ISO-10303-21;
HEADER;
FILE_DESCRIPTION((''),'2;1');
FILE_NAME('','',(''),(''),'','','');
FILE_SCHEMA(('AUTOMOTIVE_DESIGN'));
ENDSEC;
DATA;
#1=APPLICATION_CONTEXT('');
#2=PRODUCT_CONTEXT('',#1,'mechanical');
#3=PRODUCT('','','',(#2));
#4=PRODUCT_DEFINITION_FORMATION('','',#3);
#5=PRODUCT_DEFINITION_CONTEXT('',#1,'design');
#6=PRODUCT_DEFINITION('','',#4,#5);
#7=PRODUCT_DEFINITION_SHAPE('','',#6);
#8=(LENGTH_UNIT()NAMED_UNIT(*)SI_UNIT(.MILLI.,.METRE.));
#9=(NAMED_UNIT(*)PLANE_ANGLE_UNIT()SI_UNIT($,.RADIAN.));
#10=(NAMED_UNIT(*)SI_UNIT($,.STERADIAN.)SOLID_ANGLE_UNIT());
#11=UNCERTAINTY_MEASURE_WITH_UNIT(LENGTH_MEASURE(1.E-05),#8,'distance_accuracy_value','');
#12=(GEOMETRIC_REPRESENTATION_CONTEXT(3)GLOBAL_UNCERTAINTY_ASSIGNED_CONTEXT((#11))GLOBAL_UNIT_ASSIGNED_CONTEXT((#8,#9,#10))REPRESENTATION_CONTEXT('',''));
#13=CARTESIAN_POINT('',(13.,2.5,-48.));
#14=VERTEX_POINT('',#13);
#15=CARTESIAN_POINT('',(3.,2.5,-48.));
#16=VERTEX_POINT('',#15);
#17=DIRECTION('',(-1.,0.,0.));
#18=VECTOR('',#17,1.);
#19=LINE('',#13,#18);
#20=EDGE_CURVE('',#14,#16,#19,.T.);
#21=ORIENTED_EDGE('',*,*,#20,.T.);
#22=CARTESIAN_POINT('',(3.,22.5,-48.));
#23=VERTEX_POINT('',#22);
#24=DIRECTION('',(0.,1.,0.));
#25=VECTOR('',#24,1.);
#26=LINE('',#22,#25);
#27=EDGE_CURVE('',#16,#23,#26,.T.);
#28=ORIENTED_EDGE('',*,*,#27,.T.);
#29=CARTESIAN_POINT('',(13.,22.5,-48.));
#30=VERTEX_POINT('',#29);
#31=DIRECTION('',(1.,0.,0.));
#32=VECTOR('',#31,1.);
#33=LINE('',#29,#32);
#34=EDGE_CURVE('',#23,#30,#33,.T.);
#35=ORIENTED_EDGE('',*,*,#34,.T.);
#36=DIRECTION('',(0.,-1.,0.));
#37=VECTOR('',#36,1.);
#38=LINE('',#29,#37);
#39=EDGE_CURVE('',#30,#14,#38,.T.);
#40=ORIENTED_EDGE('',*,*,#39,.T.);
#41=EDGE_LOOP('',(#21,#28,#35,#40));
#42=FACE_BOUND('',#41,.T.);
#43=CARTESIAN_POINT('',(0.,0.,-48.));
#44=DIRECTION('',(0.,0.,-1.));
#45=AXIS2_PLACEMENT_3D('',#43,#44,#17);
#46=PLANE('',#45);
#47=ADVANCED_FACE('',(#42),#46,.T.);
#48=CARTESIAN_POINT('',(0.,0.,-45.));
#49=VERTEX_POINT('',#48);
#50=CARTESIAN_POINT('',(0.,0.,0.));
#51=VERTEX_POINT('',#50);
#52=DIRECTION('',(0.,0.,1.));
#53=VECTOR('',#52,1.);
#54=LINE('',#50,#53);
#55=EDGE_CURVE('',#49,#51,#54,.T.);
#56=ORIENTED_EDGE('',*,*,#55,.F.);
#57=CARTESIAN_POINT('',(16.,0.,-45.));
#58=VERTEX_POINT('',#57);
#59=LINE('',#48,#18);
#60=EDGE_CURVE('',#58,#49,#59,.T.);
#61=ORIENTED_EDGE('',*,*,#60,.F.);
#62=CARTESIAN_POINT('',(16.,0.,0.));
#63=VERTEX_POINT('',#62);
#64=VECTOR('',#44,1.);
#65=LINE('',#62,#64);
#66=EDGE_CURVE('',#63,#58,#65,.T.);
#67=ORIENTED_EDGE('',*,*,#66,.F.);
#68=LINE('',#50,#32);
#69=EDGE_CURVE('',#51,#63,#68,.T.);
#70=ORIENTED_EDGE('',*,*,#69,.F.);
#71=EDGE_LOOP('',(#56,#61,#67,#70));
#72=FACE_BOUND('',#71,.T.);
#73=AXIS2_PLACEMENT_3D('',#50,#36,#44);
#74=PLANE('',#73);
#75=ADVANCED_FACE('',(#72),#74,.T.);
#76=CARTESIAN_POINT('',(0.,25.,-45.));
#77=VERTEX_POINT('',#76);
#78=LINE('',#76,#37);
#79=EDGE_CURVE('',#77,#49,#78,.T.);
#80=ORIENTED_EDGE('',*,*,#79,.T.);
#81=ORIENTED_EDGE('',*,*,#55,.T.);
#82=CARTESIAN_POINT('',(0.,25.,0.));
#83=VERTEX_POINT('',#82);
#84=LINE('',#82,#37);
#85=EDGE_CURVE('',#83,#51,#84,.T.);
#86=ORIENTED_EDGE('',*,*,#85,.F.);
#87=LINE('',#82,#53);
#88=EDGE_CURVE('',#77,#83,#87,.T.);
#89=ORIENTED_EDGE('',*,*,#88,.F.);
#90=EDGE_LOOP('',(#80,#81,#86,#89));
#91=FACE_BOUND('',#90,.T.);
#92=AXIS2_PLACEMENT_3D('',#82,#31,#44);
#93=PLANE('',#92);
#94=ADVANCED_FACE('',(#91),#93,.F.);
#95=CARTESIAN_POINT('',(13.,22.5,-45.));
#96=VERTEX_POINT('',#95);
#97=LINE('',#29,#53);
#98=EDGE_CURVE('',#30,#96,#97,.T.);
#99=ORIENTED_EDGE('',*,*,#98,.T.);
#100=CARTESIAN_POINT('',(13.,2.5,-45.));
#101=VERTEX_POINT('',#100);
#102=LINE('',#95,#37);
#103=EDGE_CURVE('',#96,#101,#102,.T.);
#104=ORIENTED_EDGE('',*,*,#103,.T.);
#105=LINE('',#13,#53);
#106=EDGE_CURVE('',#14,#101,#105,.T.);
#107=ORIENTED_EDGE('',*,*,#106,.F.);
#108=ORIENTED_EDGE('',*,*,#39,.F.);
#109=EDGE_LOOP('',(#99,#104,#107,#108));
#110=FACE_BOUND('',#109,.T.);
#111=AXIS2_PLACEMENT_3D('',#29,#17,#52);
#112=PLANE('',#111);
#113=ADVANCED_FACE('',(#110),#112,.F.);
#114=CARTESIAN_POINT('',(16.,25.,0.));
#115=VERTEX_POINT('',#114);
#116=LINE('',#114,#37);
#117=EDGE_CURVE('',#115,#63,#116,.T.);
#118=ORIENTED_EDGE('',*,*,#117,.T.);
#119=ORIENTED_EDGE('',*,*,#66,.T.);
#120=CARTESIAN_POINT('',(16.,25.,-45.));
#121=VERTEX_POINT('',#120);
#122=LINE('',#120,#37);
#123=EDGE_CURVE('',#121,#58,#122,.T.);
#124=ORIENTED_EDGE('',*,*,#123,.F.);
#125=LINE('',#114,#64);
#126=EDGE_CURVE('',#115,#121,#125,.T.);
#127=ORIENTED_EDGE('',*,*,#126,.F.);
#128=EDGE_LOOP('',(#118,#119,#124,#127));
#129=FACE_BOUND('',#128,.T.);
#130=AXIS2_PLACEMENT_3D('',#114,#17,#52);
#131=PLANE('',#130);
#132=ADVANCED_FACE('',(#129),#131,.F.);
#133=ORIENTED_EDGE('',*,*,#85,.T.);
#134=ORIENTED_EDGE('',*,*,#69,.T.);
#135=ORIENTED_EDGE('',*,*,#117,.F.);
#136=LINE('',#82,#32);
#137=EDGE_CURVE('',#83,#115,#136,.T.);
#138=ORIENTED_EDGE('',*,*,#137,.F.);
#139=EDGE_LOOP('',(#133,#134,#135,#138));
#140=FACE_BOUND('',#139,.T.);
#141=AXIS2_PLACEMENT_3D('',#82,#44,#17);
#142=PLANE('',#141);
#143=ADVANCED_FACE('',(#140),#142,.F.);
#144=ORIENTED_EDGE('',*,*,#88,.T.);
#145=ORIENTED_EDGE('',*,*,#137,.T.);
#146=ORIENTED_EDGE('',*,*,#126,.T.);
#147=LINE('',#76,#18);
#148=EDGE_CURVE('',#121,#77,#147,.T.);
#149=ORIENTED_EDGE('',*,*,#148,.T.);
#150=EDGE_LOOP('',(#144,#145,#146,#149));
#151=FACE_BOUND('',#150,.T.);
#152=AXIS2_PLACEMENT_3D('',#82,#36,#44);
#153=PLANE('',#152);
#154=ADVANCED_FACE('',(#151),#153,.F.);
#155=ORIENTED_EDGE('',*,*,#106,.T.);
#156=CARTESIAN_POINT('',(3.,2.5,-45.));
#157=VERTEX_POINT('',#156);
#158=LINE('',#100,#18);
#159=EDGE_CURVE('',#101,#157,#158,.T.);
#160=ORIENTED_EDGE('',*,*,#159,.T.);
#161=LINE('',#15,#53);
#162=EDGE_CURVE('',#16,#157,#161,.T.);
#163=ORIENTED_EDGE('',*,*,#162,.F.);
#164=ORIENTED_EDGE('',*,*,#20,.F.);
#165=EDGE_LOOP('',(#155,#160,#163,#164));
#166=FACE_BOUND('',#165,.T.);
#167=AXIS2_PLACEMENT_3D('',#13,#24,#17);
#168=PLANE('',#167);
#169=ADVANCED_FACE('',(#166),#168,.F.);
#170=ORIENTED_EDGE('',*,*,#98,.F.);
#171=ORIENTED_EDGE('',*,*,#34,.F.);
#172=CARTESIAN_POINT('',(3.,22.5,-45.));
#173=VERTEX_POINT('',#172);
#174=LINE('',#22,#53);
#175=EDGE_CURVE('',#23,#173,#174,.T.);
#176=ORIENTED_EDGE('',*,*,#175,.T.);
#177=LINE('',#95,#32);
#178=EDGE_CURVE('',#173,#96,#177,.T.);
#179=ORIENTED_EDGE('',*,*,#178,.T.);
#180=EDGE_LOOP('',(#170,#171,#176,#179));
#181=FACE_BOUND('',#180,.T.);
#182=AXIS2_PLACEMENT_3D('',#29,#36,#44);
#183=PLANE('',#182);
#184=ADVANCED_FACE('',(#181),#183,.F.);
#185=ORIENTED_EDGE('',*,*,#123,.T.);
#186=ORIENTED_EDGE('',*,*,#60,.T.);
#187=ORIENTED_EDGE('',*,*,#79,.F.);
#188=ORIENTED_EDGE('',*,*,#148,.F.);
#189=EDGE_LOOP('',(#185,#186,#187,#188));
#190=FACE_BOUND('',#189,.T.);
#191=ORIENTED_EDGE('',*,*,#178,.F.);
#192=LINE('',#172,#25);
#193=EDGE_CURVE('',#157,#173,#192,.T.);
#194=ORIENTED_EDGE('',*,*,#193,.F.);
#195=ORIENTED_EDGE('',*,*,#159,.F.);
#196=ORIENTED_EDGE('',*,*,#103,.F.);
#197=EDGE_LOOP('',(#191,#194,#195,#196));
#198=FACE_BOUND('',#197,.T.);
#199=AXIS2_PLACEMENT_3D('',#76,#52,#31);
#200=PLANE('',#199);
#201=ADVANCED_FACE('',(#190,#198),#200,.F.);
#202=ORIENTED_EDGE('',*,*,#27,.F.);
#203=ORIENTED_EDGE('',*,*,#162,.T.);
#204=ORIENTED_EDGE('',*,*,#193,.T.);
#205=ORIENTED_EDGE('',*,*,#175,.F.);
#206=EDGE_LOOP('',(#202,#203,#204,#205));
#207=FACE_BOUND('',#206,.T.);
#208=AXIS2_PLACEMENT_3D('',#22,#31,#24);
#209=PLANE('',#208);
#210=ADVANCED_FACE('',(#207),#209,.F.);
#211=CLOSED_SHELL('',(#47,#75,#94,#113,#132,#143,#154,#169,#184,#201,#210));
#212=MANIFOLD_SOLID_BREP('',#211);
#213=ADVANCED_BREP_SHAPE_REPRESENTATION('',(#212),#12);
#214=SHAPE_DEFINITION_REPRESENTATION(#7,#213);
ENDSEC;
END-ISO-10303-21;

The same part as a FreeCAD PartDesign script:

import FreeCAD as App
import Part
import Sketcher
from FreeCAD import Vector
Q = App.Units.Quantity

doc = App.newDocument("Part")
body = doc.addObject("PartDesign::Body", "Body")

sketch1 = body.newObject("Sketcher::SketchObject", "Sketch")
sketch1.AttachmentSupport = (doc.getObject("XZ_Plane"), [""])
sketch1.MapMode = "FlatFace"
sketch1.addGeometry([
    Part.LineSegment(Vector(0, -45, 0), Vector(0, 0, 0)),
    Part.LineSegment(Vector(0, 0, 0), Vector(16, 0, 0)),
    Part.LineSegment(Vector(16, 0, 0), Vector(16, -45, 0)),
    Part.LineSegment(Vector(16, -45, 0), Vector(0, -45, 0)),
], False)
sketch1.addConstraint([
    Sketcher.Constraint("Coincident", 0, 2, 1, 1),
    Sketcher.Constraint("Coincident", 1, 2, 2, 1),
    Sketcher.Constraint("Coincident", 2, 2, 3, 1),
    Sketcher.Constraint("Coincident", 3, 2, 0, 1),
    Sketcher.Constraint("Vertical", 0),
    Sketcher.Constraint("Horizontal", 1),
    Sketcher.Constraint("Vertical", 2),
    Sketcher.Constraint("Horizontal", 3),
    Sketcher.Constraint("Coincident", 0, 2, -1, 1),
    Sketcher.Constraint("DistanceX", 1, 1, 1, 2, Q("16 mm")),
    Sketcher.Constraint("DistanceY", 0, 1, 0, 2, Q("45 mm")),
])
pad1 = body.newObject("PartDesign::Pad", "Pad")
pad1.Profile = sketch1
pad1.Length = 25
pad1.Reversed = True

sketch2 = body.newObject("Sketcher::SketchObject", "Sketch001")
sketch2.AttachmentSupport = (doc.getObject("XY_Plane"), [""])
sketch2.MapMode = "FlatFace"
sketch2.AttachmentOffset = App.Placement(Vector(0, 0, -45), App.Rotation())
sketch2.addGeometry([
    Part.LineSegment(Vector(13, 22.5, 0), Vector(13, 2.5, 0)),
    Part.LineSegment(Vector(13, 2.5, 0), Vector(3, 2.5, 0)),
    Part.LineSegment(Vector(3, 2.5, 0), Vector(3, 22.5, 0)),
    Part.LineSegment(Vector(3, 22.5, 0), Vector(13, 22.5, 0)),
], False)
sketch2.addConstraint([
    Sketcher.Constraint("Coincident", 0, 2, 1, 1),
    Sketcher.Constraint("Coincident", 1, 2, 2, 1),
    Sketcher.Constraint("Coincident", 2, 2, 3, 1),
    Sketcher.Constraint("Coincident", 3, 2, 0, 1),
    Sketcher.Constraint("Vertical", 0),
    Sketcher.Constraint("Horizontal", 1),
    Sketcher.Constraint("Vertical", 2),
    Sketcher.Constraint("Horizontal", 3),
    Sketcher.Constraint("DistanceX", 1, 2, 1, 1, Q("10 mm")),
    Sketcher.Constraint("DistanceY", 0, 2, 0, 1, Q("20 mm")),
    Sketcher.Constraint("DistanceX", -1, 1, 0, 2, Q("13 mm")),
    Sketcher.Constraint("DistanceY", -1, 1, 0, 2, Q("2.5 mm")),
])
pad2 = body.newObject("PartDesign::Pad", "Pad001")
pad2.Profile = sketch2
pad2.Length = 3
pad2.Reversed = True

doc.recompute()
